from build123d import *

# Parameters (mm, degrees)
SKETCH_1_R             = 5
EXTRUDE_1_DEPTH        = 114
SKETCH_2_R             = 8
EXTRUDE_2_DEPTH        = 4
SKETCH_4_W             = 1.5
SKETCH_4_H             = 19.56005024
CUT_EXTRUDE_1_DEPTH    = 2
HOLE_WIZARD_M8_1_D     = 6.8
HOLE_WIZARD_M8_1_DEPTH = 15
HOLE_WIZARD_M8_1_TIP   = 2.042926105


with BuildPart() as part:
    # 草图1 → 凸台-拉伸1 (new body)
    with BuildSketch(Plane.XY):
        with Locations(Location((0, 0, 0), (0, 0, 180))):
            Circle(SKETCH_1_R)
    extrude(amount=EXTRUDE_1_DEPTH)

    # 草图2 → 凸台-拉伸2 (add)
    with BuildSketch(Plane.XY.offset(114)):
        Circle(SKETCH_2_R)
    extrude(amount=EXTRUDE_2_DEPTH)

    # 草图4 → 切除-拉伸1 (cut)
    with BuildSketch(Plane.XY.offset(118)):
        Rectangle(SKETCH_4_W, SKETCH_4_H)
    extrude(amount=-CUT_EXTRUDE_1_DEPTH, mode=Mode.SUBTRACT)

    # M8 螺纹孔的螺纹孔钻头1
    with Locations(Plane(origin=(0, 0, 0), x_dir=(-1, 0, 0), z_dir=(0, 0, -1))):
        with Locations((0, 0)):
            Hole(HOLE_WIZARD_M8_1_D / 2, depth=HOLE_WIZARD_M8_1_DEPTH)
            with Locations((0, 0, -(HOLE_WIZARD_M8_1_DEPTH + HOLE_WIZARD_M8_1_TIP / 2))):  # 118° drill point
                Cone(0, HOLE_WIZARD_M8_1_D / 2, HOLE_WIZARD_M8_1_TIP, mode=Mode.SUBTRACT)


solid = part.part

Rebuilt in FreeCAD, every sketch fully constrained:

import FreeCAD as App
import Part
import Sketcher

doc = App.newDocument("Part")
body = doc.addObject("PartDesign::Body", "Body")

sketch1 = doc.addObject("Sketcher::SketchObject", "Sketch")
body.addObject(sketch1)
sketch1.AttachmentSupport = (doc.XY_Plane, [""])
sketch1.MapMode = "FlatFace"
sketch1.addGeometry(Part.Circle(App.Vector(0, 0, 0), App.Vector(0, 0, 1), 5), False)
sketch1.addConstraint(Sketcher.Constraint("Coincident", 0, 3, -1, 1))
sketch1.addConstraint(Sketcher.Constraint("Diameter", 0, 10.0))
pad1 = doc.addObject("PartDesign::Pad", "Pad")
body.addObject(pad1)
pad1.Profile = sketch1
pad1.Length = 114

sketch2 = doc.addObject("Sketcher::SketchObject", "Sketch001")
body.addObject(sketch2)
sketch2.AttachmentSupport = (doc.XY_Plane, [""])
sketch2.MapMode = "FlatFace"
sketch2.AttachmentOffset = App.Placement(App.Vector(0, 0, 114), App.Rotation())
sketch2.addGeometry(Part.Circle(App.Vector(0, 0, 0), App.Vector(0, 0, 1), 8), False)
sketch2.addConstraint(Sketcher.Constraint("Coincident", 0, 3, -1, 1))
sketch2.addConstraint(Sketcher.Constraint("Diameter", 0, 16.0))
pad2 = doc.addObject("PartDesign::Pad", "Pad001")
body.addObject(pad2)
pad2.Profile = sketch2
pad2.Length = 4

sketch3 = doc.addObject("Sketcher::SketchObject", "Sketch002")
body.addObject(sketch3)
sketch3.AttachmentSupport = (doc.XY_Plane, [""])
sketch3.MapMode = "FlatFace"
sketch3.AttachmentOffset = App.Placement(App.Vector(0, 0, 118), App.Rotation())
sketch3.addGeometry(Part.LineSegment(App.Vector(-0.8, 9.8, 0), App.Vector(-0.8, -9.8, 0)), False)
sketch3.addGeometry(Part.LineSegment(App.Vector(-0.8, -9.8, 0), App.Vector(0.8, -9.8, 0)), False)
sketch3.addGeometry(Part.LineSegment(App.Vector(0.8, -9.8, 0), App.Vector(0.8, 9.8, 0)), False)
sketch3.addGeometry(Part.LineSegment(App.Vector(0.8, 9.8, 0), App.Vector(-0.8, 9.8, 0)), False)
sketch3.addConstraint(Sketcher.Constraint("Coincident", 0, 2, 1, 1))
sketch3.addConstraint(Sketcher.Constraint("Coincident", 1, 2, 2, 1))
sketch3.addConstraint(Sketcher.Constraint("Coincident", 2, 2, 3, 1))
sketch3.addConstraint(Sketcher.Constraint("Coincident", 3, 2, 0, 1))
sketch3.addConstraint(Sketcher.Constraint("Vertical", 0))
sketch3.addConstraint(Sketcher.Constraint("Horizontal", 1))
sketch3.addConstraint(Sketcher.Constraint("Vertical", 2))
sketch3.addConstraint(Sketcher.Constraint("Horizontal", 3))
sketch3.addConstraint(Sketcher.Constraint("Symmetric", 0, 2, 2, 2, -1, 1))
sketch3.addConstraint(Sketcher.Constraint("DistanceX", 1, 1, 1, 2, 1.5))
sketch3.addConstraint(Sketcher.Constraint("DistanceY", 0, 2, 0, 1, 19.56005))
pocket1 = doc.addObject("PartDesign::Pocket", "Pocket")
body.addObject(pocket1)
pocket1.Profile = sketch3
pocket1.Length = 2

sketch4 = doc.addObject("Sketcher::SketchObject", "Sketch003")
body.addObject(sketch4)
sketch4.AttachmentSupport = (doc.XY_Plane, [""])
sketch4.MapMode = "FlatFace"
sketch4.addGeometry(Part.Circle(App.Vector(0, 0, 0), App.Vector(0, 0, 1), 3.4), False)
sketch4.addConstraint(Sketcher.Constraint("Coincident", 0, 3, -1, 1))
sketch4.addConstraint(Sketcher.Constraint("Diameter", 0, 6.8))
doc.recompute()
hole = doc.addObject("PartDesign::Hole", "Hole")
body.addObject(hole)
hole.Profile = sketch4
hole.ThreadType = "None"
hole.Diameter = 6.8
hole.DepthType = "Dimension"
hole.Depth = 15
hole.DrillPoint = "Angled"
hole.DrillPointAngle = 118
hole.Reversed = True

doc.recompute()
